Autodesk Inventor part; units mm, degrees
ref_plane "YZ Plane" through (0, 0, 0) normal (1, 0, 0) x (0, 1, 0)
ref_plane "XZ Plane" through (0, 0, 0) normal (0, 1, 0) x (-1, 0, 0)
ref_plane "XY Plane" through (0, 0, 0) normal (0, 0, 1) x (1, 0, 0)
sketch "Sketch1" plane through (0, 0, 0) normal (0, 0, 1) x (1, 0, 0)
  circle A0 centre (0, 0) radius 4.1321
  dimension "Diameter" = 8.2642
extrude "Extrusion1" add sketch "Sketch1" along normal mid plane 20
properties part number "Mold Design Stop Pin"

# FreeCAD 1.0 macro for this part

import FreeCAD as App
import Part
import Sketcher

V = App.Vector

doc = App.newDocument("Part")
params = doc.addObject("Spreadsheet::Sheet", "Params")
for row, (alias, value) in enumerate([
    ("pad1_length", "20 mm"),
], start=1):
    params.set(f"A{row}", alias)
    params.set(f"B{row}", "=" + value)
    params.setAlias(f"B{row}", alias)

body = doc.addObject("PartDesign::Body", "Body")

sketch1 = body.newObject("Sketcher::SketchObject", "Sketch")
sketch1.AttachmentSupport = (doc.getObject("XY_Plane"), [""])
sketch1.MapMode = "FlatFace"
sketch1.addGeometry(Part.Circle(V(0, 0, 0), V(0, 0, 1), 4.1321), False)
sketch1.addConstraint(Sketcher.Constraint("Coincident", 0, 3, -1, 1))
sketch1.addConstraint(Sketcher.Constraint("Diameter", 0, 8.2642))
pad1 = body.newObject("PartDesign::Pad", "Pad")
pad1.Profile = sketch1
pad1.setExpression("Length", "Params.pad1_length")
pad1.Midplane = True

doc.recompute()
